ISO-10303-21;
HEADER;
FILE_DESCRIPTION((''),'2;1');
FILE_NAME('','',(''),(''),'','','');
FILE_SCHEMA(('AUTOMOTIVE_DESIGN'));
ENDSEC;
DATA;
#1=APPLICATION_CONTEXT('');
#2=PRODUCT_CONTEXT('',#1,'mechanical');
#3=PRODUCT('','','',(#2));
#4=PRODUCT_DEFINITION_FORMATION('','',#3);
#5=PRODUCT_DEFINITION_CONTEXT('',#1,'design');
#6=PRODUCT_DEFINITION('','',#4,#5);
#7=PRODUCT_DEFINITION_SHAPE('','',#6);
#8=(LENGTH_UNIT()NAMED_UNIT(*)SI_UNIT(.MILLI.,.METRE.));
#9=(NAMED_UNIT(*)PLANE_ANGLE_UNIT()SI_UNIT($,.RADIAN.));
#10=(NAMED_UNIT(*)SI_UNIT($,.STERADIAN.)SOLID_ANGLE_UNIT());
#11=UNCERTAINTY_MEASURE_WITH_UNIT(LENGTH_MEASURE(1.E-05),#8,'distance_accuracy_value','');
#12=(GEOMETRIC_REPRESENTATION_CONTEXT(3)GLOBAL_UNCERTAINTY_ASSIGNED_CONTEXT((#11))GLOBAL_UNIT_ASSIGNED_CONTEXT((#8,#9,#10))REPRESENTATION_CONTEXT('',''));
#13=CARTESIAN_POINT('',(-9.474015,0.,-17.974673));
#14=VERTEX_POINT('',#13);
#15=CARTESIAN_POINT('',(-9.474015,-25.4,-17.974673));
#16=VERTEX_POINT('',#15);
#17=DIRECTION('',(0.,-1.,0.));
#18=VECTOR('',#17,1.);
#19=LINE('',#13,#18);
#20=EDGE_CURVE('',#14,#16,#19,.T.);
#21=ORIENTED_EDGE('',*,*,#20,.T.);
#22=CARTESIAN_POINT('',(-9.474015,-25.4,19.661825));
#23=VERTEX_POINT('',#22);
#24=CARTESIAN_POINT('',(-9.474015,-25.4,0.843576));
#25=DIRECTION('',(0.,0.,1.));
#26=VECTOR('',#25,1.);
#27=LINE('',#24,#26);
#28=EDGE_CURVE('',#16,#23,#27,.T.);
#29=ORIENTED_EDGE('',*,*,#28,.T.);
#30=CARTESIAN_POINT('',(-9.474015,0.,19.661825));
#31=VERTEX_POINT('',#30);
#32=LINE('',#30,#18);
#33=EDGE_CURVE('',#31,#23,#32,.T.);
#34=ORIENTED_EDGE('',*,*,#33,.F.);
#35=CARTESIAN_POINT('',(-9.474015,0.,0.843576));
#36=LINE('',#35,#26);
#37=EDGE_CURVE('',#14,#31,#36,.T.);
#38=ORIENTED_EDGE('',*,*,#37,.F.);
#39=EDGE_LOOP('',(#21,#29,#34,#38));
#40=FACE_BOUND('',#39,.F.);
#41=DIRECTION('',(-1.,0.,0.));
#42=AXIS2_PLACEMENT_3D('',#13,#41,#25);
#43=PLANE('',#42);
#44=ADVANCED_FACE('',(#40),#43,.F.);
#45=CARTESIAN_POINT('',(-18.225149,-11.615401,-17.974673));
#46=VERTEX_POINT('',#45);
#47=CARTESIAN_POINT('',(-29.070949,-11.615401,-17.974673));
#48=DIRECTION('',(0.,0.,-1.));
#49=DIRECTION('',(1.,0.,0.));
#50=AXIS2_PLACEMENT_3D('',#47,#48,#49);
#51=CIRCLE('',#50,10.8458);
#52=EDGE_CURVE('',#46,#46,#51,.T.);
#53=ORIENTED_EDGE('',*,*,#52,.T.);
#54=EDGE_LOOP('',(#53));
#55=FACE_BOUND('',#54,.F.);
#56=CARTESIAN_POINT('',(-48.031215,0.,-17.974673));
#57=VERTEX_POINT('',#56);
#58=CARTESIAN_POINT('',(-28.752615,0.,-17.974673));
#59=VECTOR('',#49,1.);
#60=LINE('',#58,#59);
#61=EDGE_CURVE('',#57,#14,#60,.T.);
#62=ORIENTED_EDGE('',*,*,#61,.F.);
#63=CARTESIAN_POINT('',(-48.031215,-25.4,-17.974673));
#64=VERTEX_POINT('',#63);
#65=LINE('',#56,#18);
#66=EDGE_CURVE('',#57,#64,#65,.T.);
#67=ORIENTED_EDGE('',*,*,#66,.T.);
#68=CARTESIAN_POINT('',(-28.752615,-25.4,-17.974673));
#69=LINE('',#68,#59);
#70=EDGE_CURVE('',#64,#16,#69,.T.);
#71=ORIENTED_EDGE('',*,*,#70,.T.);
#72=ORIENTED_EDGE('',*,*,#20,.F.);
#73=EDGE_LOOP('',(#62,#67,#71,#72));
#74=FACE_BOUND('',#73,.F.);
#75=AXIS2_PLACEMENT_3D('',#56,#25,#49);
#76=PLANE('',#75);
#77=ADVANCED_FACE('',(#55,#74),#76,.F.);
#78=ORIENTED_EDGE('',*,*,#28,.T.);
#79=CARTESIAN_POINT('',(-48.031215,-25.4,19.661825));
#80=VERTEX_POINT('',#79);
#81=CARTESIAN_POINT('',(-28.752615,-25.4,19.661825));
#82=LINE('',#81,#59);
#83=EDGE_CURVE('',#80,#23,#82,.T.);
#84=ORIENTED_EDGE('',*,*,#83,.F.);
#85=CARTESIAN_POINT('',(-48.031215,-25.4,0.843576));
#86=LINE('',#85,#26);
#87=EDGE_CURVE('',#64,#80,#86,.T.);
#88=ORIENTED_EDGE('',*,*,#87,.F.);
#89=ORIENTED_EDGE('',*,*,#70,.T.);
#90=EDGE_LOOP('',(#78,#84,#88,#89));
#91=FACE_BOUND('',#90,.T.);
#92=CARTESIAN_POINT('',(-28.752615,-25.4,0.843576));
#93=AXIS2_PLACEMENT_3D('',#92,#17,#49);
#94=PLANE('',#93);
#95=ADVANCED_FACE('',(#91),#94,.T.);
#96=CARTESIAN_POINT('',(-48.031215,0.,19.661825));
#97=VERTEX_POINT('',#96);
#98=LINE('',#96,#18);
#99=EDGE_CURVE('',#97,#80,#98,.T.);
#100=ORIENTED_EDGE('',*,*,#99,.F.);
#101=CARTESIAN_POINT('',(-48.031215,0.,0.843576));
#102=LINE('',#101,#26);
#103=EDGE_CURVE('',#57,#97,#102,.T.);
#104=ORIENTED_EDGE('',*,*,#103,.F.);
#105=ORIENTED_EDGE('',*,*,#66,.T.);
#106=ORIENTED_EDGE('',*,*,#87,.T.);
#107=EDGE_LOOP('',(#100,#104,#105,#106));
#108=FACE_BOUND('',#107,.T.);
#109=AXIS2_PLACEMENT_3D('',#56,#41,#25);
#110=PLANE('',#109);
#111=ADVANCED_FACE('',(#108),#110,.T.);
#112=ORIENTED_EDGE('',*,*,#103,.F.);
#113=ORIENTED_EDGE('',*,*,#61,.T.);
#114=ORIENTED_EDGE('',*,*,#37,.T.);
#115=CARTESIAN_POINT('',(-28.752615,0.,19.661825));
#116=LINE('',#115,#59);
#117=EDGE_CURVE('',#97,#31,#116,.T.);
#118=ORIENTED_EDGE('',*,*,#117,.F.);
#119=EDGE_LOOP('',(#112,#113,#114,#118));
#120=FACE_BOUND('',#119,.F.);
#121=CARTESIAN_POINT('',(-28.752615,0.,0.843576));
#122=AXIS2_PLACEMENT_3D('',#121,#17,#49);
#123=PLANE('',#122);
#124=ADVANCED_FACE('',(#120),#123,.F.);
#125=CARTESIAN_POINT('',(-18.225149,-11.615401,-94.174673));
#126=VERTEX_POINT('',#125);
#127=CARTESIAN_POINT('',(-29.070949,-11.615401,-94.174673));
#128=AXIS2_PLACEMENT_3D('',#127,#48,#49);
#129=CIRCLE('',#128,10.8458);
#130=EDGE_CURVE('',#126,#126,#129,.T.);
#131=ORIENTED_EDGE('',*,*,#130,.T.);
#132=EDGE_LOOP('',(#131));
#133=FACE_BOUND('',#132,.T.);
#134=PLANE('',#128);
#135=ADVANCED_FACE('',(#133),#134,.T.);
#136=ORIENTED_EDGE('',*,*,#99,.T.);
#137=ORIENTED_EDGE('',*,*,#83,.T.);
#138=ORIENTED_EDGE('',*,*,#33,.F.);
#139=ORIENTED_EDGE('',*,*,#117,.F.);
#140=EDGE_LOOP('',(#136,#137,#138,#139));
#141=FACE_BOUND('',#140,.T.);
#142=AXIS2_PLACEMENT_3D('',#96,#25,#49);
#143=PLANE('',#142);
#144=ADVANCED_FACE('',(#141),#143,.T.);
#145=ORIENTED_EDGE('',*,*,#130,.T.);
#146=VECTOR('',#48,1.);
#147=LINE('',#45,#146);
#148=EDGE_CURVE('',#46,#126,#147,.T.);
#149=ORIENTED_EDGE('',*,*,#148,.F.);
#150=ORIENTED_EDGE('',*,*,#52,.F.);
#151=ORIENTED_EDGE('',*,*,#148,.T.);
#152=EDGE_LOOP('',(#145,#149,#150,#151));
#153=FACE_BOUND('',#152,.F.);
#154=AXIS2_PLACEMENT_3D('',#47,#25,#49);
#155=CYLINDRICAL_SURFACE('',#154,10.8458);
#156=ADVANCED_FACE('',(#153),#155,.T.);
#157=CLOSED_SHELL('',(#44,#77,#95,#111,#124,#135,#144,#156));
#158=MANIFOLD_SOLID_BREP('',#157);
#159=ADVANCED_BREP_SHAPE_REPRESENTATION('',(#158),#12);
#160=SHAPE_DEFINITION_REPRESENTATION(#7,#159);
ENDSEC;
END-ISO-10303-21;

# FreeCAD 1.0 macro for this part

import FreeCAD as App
import Part
import Sketcher
Q = App.Units.Quantity

doc = App.newDocument("Part")
body = doc.addObject("PartDesign::Body", "Body")

# Sketch on XZ plane
sketch1 = body.newObject("Sketcher::SketchObject", "Sketch")
sketch1.AttachmentSupport = (doc.getObject("XZ_Plane"), [""])
sketch1.MapMode = "FlatFace"
sketch1.addGeometry(Part.LineSegment(App.Vector(-48, 20, 0), App.Vector(-48, -18, 0)), False)
sketch1.addGeometry(Part.LineSegment(App.Vector(-48, -18, 0), App.Vector(-9, -18, 0)), False)
sketch1.addGeometry(Part.LineSegment(App.Vector(-9, -18, 0), App.Vector(-9, 20, 0)), False)
sketch1.addGeometry(Part.LineSegment(App.Vector(-9, 20, 0), App.Vector(-48, 20, 0)), False)
sketch1.addConstraint(Sketcher.Constraint("Coincident", 0, 2, 1, 1))
sketch1.addConstraint(Sketcher.Constraint("Coincident", 1, 2, 2, 1))
sketch1.addConstraint(Sketcher.Constraint("Coincident", 2, 2, 3, 1))
sketch1.addConstraint(Sketcher.Constraint("Coincident", 3, 2, 0, 1))
sketch1.addConstraint(Sketcher.Constraint("Vertical", 0))
sketch1.addConstraint(Sketcher.Constraint("Horizontal", 1))
sketch1.addConstraint(Sketcher.Constraint("Vertical", 2))
sketch1.addConstraint(Sketcher.Constraint("Horizontal", 3))
sketch1.addConstraint(Sketcher.Constraint("DistanceX", 1, 1, 1, 2, Q("1.518 in")))
sketch1.addConstraint(Sketcher.Constraint("DistanceY", 0, 2, 0, 1, 37.636498))
sketch1.addConstraint(Sketcher.Constraint("DistanceX", 0, 2, -1, 1, 48.031215))
sketch1.addConstraint(Sketcher.Constraint("DistanceY", 0, 2, -1, 1, 17.974673))
pad1 = body.newObject("PartDesign::Pad", "Pad")
pad1.Profile = sketch1
pad1.Length = Q("1 in")

# Sketch on XY plane
sketch2 = body.newObject("Sketcher::SketchObject", "Sketch001")
sketch2.AttachmentSupport = (doc.getObject("XY_Plane"), [""])
sketch2.MapMode = "FlatFace"
sketch2.AttachmentOffset = App.Placement(App.Vector(0, 0, -17.974673), App.Rotation())
sketch2.addGeometry(Part.Circle(App.Vector(-29, -12, 0), App.Vector(0, 0, 1), 11), False)
sketch2.addConstraint(Sketcher.Constraint("Diameter", 0, Q("0.854 in")))
sketch2.addConstraint(Sketcher.Constraint("DistanceY", 0, 3, -1, 1, 11.615401))
sketch2.addConstraint(Sketcher.Constraint("DistanceX", 0, 3, -1, 1, 29.070949))
pad2 = body.newObject("PartDesign::Pad", "Pad001")
pad2.Profile = sketch2
pad2.Length = Q("3 in")
pad2.Reversed = True

doc.recompute()
